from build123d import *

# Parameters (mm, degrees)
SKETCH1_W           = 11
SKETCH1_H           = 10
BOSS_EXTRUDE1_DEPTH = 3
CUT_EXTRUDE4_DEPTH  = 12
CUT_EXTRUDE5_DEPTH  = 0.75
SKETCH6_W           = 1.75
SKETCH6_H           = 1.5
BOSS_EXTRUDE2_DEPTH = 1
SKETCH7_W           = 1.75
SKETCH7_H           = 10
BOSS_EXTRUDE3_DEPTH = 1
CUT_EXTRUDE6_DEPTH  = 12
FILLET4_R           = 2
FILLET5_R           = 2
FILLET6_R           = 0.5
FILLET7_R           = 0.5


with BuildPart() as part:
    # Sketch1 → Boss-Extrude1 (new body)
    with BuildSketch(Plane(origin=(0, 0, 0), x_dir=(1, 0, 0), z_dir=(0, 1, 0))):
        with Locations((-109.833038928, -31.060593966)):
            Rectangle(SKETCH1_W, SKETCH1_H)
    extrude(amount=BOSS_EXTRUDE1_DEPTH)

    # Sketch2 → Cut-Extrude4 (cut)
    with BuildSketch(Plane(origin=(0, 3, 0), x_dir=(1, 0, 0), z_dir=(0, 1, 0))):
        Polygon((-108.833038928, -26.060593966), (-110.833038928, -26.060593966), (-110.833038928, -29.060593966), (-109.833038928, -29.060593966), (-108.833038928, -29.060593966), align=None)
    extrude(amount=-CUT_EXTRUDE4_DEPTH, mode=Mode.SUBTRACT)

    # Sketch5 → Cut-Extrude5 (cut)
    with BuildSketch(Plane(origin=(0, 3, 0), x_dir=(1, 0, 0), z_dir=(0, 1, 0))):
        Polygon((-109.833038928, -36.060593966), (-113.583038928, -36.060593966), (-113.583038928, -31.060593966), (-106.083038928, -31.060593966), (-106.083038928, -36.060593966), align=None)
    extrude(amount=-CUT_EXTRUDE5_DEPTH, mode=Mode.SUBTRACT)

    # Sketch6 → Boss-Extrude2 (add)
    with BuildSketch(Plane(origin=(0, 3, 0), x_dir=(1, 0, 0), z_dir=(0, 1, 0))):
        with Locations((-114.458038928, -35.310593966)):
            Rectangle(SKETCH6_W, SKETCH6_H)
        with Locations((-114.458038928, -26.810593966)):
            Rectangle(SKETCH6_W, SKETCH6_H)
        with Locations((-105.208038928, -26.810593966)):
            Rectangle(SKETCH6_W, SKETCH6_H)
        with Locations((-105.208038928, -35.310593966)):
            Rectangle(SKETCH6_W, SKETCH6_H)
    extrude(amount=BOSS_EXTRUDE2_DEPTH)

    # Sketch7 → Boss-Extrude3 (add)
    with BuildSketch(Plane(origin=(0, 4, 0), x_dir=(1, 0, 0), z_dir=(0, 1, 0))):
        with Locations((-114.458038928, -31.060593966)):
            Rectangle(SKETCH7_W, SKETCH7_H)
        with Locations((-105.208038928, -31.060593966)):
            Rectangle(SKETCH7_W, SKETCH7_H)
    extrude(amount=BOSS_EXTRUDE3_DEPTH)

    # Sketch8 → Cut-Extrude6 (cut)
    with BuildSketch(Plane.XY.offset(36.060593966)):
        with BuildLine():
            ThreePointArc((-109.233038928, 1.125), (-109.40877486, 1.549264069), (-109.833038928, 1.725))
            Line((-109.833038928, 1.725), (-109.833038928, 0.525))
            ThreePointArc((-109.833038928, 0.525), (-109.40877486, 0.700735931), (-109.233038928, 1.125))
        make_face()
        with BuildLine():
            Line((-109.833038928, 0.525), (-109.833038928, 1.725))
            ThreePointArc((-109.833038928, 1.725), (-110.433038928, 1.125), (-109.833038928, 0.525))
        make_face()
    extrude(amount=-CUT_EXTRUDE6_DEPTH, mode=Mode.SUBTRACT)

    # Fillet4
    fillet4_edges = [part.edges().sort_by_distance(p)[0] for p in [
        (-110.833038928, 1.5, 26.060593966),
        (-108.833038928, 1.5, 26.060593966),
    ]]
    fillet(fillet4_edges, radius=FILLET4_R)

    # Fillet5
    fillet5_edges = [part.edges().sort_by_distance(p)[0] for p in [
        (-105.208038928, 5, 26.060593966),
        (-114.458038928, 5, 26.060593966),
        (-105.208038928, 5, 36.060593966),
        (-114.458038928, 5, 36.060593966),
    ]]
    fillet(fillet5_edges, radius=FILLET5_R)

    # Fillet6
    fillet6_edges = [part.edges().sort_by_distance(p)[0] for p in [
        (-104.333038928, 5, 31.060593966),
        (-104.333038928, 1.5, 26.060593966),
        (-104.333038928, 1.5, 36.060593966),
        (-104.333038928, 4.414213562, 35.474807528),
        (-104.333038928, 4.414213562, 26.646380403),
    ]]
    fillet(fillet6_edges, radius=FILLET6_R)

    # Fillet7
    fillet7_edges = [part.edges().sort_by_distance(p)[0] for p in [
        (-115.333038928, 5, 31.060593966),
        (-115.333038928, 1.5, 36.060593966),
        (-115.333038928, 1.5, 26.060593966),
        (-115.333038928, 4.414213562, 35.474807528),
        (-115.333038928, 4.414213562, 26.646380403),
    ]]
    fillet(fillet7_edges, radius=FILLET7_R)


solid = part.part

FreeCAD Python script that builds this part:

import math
import FreeCAD as App
import Part
import Sketcher

V = App.Vector
Q = App.Units.Quantity


def edges_at(feature, points):
    """Names of the edges that pass closest to the given points."""
    edges = feature.Shape.Edges
    near = lambda p: min(range(len(edges)), key=lambda i: edges[i].distToShape(Part.Vertex(*p))[0])
    return sorted({f"Edge{near(p) + 1}" for p in points})

doc = App.newDocument("Part")
params = doc.addObject("Spreadsheet::Sheet", "Params")
for row, (alias, value) in enumerate([
    ("sketch1_width", "11 mm"),
    ("sketch1_height", "10 mm"),
    ("pad1_length", "3 mm"),
    ("sketch2_width", "2 mm"),
    ("sketch2_height", "3 mm"),
    ("pocket1_length", "12 mm"),
    ("sketch3_height", "5 mm"),
    ("sketch3_width", "7.5 mm"),
    ("pocket2_length", "0.75 mm"),
    ("sketch4_height", "1.5 mm"),
    ("sketch4_width", "1.75 mm"),
    ("pad2_length", "1 mm"),
    ("sketch5_height", "10 mm"),
    ("sketch5_width", "1.75 mm"),
    ("pad3_length", "1 mm"),
    ("sketch6_radius", "0.6 mm"),
    ("pocket3_length", "12 mm"),
    ("fillet_radius", "2 mm"),
    ("fillet2_radius", "2 mm"),
    ("fillet3_radius", "0.5 mm"),
    ("fillet4_radius", "0.5 mm"),
], start=1):
    params.set(f"A{row}", alias)
    params.set(f"B{row}", "=" + value)
    params.setAlias(f"B{row}", alias)

body = doc.addObject("PartDesign::Body", "Body")

# Sketch on XZ plane
sketch1 = doc.addObject("Sketcher::SketchObject", "Sketch")
body.addObject(sketch1)
sketch1.AttachmentSupport = (doc.XZ_Plane, [""])
sketch1.MapMode = "FlatFace"
sketch1.addGeometry([
    Part.LineSegment(V(-115, 26, 0), V(-115, 36, 0)),
    Part.LineSegment(V(-115, 36, 0), V(-104, 36, 0)),
    Part.LineSegment(V(-104, 36, 0), V(-104, 26, 0)),
    Part.LineSegment(V(-104, 26, 0), V(-115, 26, 0)),
], False)
sketch1.addConstraint([
    Sketcher.Constraint("Coincident", 0, 2, 1, 1),
    Sketcher.Constraint("Coincident", 1, 2, 2, 1),
    Sketcher.Constraint("Coincident", 2, 2, 3, 1),
    Sketcher.Constraint("Coincident", 3, 2, 0, 1),
    Sketcher.Constraint("Vertical", 0),
    Sketcher.Constraint("Horizontal", 1),
    Sketcher.Constraint("Vertical", 2),
    Sketcher.Constraint("Horizontal", 3),
    Sketcher.Constraint("DistanceX", 1, 1, 1, 2, Q("11 mm")),
    Sketcher.Constraint("DistanceY", 0, 1, 0, 2, Q("10 mm")),
    Sketcher.Constraint("DistanceX", 0, 2, -1, 1, Q("115.333039 mm")),
    Sketcher.Constraint("DistanceY", -1, 1, 0, 2, Q("36.060594 mm")),
])
sketch1.setExpression("Constraints[8]", "Params.sketch1_width")
sketch1.setExpression("Constraints[9]", "Params.sketch1_height")
pad1 = doc.addObject("PartDesign::Pad", "Pad")
body.addObject(pad1)
pad1.Profile = sketch1
pad1.setExpression("Length", "Params.pad1_length")
pad1.Reversed = True

# Sketch on XZ plane
sketch2 = doc.addObject("Sketcher::SketchObject", "Sketch001")
body.addObject(sketch2)
sketch2.AttachmentSupport = (doc.XZ_Plane, [""])
sketch2.MapMode = "FlatFace"
sketch2.AttachmentOffset = App.Placement(V(0, 0, -3), App.Rotation())
sketch2.addGeometry([
    Part.LineSegment(V(-108.8, 26.1, 0), V(-110.8, 26.1, 0)),
    Part.LineSegment(V(-110.8, 26.1, 0), V(-110.8, 29.1, 0)),
    Part.LineSegment(V(-110.8, 29.1, 0), V(-108.8, 29.1, 0)),
    Part.LineSegment(V(-108.8, 29.1, 0), V(-108.8, 26.1, 0)),
], False)
sketch2.addConstraint([
    Sketcher.Constraint("Coincident", 0, 2, 1, 1),
    Sketcher.Constraint("Coincident", 1, 2, 2, 1),
    Sketcher.Constraint("Coincident", 2, 2, 3, 1),
    Sketcher.Constraint("Coincident", 3, 2, 0, 1),
    Sketcher.Constraint("Horizontal", 0),
    Sketcher.Constraint("Vertical", 1),
    Sketcher.Constraint("Horizontal", 2),
    Sketcher.Constraint("Vertical", 3),
    Sketcher.Constraint("DistanceX", 0, 2, 0, 1, Q("2 mm")),
    Sketcher.Constraint("DistanceY", 1, 1, 1, 2, Q("3 mm")),
    Sketcher.Constraint("DistanceX", 0, 2, -1, 1, Q("110.833039 mm")),
    Sketcher.Constraint("DistanceY", -1, 1, 0, 2, Q("26.060594 mm")),
])
sketch2.setExpression("Constraints[8]", "Params.sketch2_width")
sketch2.setExpression("Constraints[9]", "Params.sketch2_height")
pocket1 = doc.addObject("PartDesign::Pocket", "Pocket")
body.addObject(pocket1)
pocket1.Profile = sketch2
pocket1.setExpression("Length", "Params.pocket1_length")
pocket1.Reversed = True

# Sketch on XZ plane
sketch3 = doc.addObject("Sketcher::SketchObject", "Sketch002")
body.addObject(sketch3)
sketch3.AttachmentSupport = (doc.XZ_Plane, [""])
sketch3.MapMode = "FlatFace"
sketch3.AttachmentOffset = App.Placement(V(0, 0, -3), App.Rotation())
sketch3.addGeometry([
    Part.LineSegment(V(-114, 36, 0), V(-106, 36, 0)),
    Part.LineSegment(V(-106, 36, 0), V(-106, 31, 0)),
    Part.LineSegment(V(-106, 31, 0), V(-114, 31, 0)),
    Part.LineSegment(V(-114, 31, 0), V(-114, 36, 0)),
], False)
sketch3.addConstraint([
    Sketcher.Constraint("Coincident", 0, 2, 1, 1),
    Sketcher.Constraint("Coincident", 1, 2, 2, 1),
    Sketcher.Constraint("Coincident", 2, 2, 3, 1),
    Sketcher.Constraint("Coincident", 3, 2, 0, 1),
    Sketcher.Constraint("Horizontal", 0),
    Sketcher.Constraint("Vertical", 1),
    Sketcher.Constraint("Horizontal", 2),
    Sketcher.Constraint("Vertical", 3),
    Sketcher.Constraint("DistanceY", 1, 2, 1, 1, Q("5 mm")),
    Sketcher.Constraint("DistanceX", 0, 1, 0, 2, Q("7.5 mm")),
    Sketcher.Constraint("DistanceX", 0, 2, -1, 1, Q("106.083039 mm")),
    Sketcher.Constraint("DistanceY", -1, 1, 0, 2, Q("36.060594 mm")),
])
sketch3.setExpression("Constraints[8]", "Params.sketch3_height")
sketch3.setExpression("Constraints[9]", "Params.sketch3_width")
pocket2 = doc.addObject("PartDesign::Pocket", "Pocket001")
body.addObject(pocket2)
pocket2.Profile = sketch3
pocket2.setExpression("Length", "Params.pocket2_length")
pocket2.Reversed = True

# Sketch on XZ plane
sketch4 = doc.addObject("Sketcher::SketchObject", "Sketch003")
body.addObject(sketch4)
sketch4.AttachmentSupport = (doc.XZ_Plane, [""])
sketch4.MapMode = "FlatFace"
sketch4.AttachmentOffset = App.Placement(V(0, 0, -3), App.Rotation())
sketch4.addGeometry([
    Part.LineSegment(V(-115.3, 34.6, 0), V(-115.3, 36.1, 0)),  # 0
    Part.LineSegment(V(-115.3, 36.1, 0), V(-113.6, 36.1, 0)),  # 1
    Part.LineSegment(V(-113.6, 36.1, 0), V(-113.6, 34.6, 0)),  # 2
    Part.LineSegment(V(-113.6, 34.6, 0), V(-115.3, 34.6, 0)),  # 3
    Part.LineSegment(V(-115.3, 26.1, 0), V(-115.3, 27.6, 0)),  # 4
    Part.LineSegment(V(-115.3, 27.6, 0), V(-113.6, 27.6, 0)),  # 5
    Part.LineSegment(V(-113.6, 27.6, 0), V(-113.6, 26.1, 0)),  # 6
    Part.LineSegment(V(-113.6, 26.1, 0), V(-115.3, 26.1, 0)),  # 7
    Part.LineSegment(V(-106.1, 26.1, 0), V(-106.1, 27.6, 0)),  # 8
    Part.LineSegment(V(-106.1, 27.6, 0), V(-104.3, 27.6, 0)),  # 9
    Part.LineSegment(V(-104.3, 27.6, 0), V(-104.3, 26.1, 0)),  # 10
    Part.LineSegment(V(-104.3, 26.1, 0), V(-106.1, 26.1, 0)),  # 11
    Part.LineSegment(V(-106.1, 34.6, 0), V(-106.1, 36.1, 0)),  # 12
    Part.LineSegment(V(-106.1, 36.1, 0), V(-104.3, 36.1, 0)),  # 13
    Part.LineSegment(V(-104.3, 36.1, 0), V(-104.3, 34.6, 0)),  # 14
    Part.LineSegment(V(-104.3, 34.6, 0), V(-106.1, 34.6, 0)),  # 15
], False)
sketch4.addConstraint([
    Sketcher.Constraint("Coincident", 0, 2, 1, 1),
    Sketcher.Constraint("Coincident", 1, 2, 2, 1),
    Sketcher.Constraint("Coincident", 2, 2, 3, 1),
    Sketcher.Constraint("Coincident", 3, 2, 0, 1),
    Sketcher.Constraint("Coincident", 4, 2, 5, 1),
    Sketcher.Constraint("Coincident", 5, 2, 6, 1),
    Sketcher.Constraint("Coincident", 6, 2, 7, 1),
    Sketcher.Constraint("Coincident", 7, 2, 4, 1),
    Sketcher.Constraint("Coincident", 8, 2, 9, 1),
    Sketcher.Constraint("Coincident", 9, 2, 10, 1),
    Sketcher.Constraint("Coincident", 10, 2, 11, 1),
    Sketcher.Constraint("Coincident", 11, 2, 8, 1),
    Sketcher.Constraint("Coincident", 12, 2, 13, 1),
    Sketcher.Constraint("Coincident", 13, 2, 14, 1),
    Sketcher.Constraint("Coincident", 14, 2, 15, 1),
    Sketcher.Constraint("Coincident", 15, 2, 12, 1),
    Sketcher.Constraint("Vertical", 0),
    Sketcher.Constraint("Horizontal", 1),
    Sketcher.Constraint("Vertical", 2),
    Sketcher.Constraint("Horizontal", 3),
    Sketcher.Constraint("Vertical", 4),
    Sketcher.Constraint("Horizontal", 5),
    Sketcher.Constraint("Vertical", 6),
    Sketcher.Constraint("Horizontal", 7),
    Sketcher.Constraint("Vertical", 8),
    Sketcher.Constraint("Horizontal", 9),
    Sketcher.Constraint("Vertical", 10),
    Sketcher.Constraint("Horizontal", 11),
    Sketcher.Constraint("Vertical", 12),
    Sketcher.Constraint("Horizontal", 13),
    Sketcher.Constraint("Vertical", 14),
    Sketcher.Constraint("Horizontal", 15),
    Sketcher.Constraint("Horizontal", 5, 2, 8, 2),
    Sketcher.Constraint("Horizontal", 7, 2, 10, 2),
    Sketcher.Constraint("Horizontal", 1, 2, 12, 2),
    Sketcher.Constraint("Horizontal", 3, 2, 14, 2),
    Sketcher.Constraint("Vertical", 3, 2, 4, 2),
    Sketcher.Constraint("Vertical", 2, 2, 5, 2),
    Sketcher.Constraint("Vertical", 11, 2, 12, 2),
    Sketcher.Constraint("Vertical", 10, 2, 13, 2),
    Sketcher.Constraint("Equal", 7, 9),
    Sketcher.Constraint("Equal", 2, 4),
    Sketcher.Constraint("DistanceY", 0, 1, 0, 2, Q("1.5 mm")),
    Sketcher.Constraint("DistanceY", 4, 2, 3, 2, Q("7 mm")),
    Sketcher.Constraint("DistanceX", 4, 2, 9, 2, Q("11 mm")),
    Sketcher.Constraint("DistanceX", 1, 1, 1, 2, Q("1.75 mm")),
    Sketcher.Constraint("DistanceX", 0, 2, -1, 1, Q("115.333039 mm")),
    Sketcher.Constraint("DistanceY", -1, 1, 0, 2, Q("36.060594 mm")),
])
sketch4.setExpression("Constraints[42]", "Params.sketch4_height")
sketch4.setExpression("Constraints[45]", "Params.sketch4_width")
pad2 = doc.addObject("PartDesign::Pad", "Pad001")
body.addObject(pad2)
pad2.Profile = sketch4
pad2.setExpression("Length", "Params.pad2_length")
pad2.Reversed = True

# Sketch on XZ plane
sketch5 = doc.addObject("Sketcher::SketchObject", "Sketch004")
body.addObject(sketch5)
sketch5.AttachmentSupport = (doc.XZ_Plane, [""])
sketch5.MapMode = "FlatFace"
sketch5.AttachmentOffset = App.Placement(V(0, 0, -4), App.Rotation())
sketch5.addGeometry([
    Part.LineSegment(V(-115.3, 26.1, 0), V(-115.3, 36.1, 0)),  # 0
    Part.LineSegment(V(-115.3, 36.1, 0), V(-113.6, 36.1, 0)),  # 1
    Part.LineSegment(V(-113.6, 36.1, 0), V(-113.6, 26.1, 0)),  # 2
    Part.LineSegment(V(-113.6, 26.1, 0), V(-115.3, 26.1, 0)),  # 3
    Part.LineSegment(V(-106.1, 26.1, 0), V(-106.1, 36.1, 0)),  # 4
    Part.LineSegment(V(-106.1, 36.1, 0), V(-104.3, 36.1, 0)),  # 5
    Part.LineSegment(V(-104.3, 36.1, 0), V(-104.3, 26.1, 0)),  # 6
    Part.LineSegment(V(-104.3, 26.1, 0), V(-106.1, 26.1, 0)),  # 7
], False)
sketch5.addConstraint([
    Sketcher.Constraint("Coincident", 0, 2, 1, 1),
    Sketcher.Constraint("Coincident", 1, 2, 2, 1),
    Sketcher.Constraint("Coincident", 2, 2, 3, 1),
    Sketcher.Constraint("Coincident", 3, 2, 0, 1),
    Sketcher.Constraint("Coincident", 4, 2, 5, 1),
    Sketcher.Constraint("Coincident", 5, 2, 6, 1),
    Sketcher.Constraint("Coincident", 6, 2, 7, 1),
    Sketcher.Constraint("Coincident", 7, 2, 4, 1),
    Sketcher.Constraint("Vertical", 0),
    Sketcher.Constraint("Horizontal", 1),
    Sketcher.Constraint("Vertical", 2),
    Sketcher.Constraint("Horizontal", 3),
    Sketcher.Constraint("Vertical", 4),
    Sketcher.Constraint("Horizontal", 5),
    Sketcher.Constraint("Vertical", 6),
    Sketcher.Constraint("Horizontal", 7),
    Sketcher.Constraint("Horizontal", 1, 2, 4, 2),
    Sketcher.Constraint("Horizontal", 3, 2, 6, 2),
    Sketcher.Constraint("Equal", 3, 5),
    Sketcher.Constraint("DistanceY", 0, 1, 0, 2, Q("10 mm")),
    Sketcher.Constraint("DistanceX", 0, 2, 5, 2, Q("11 mm")),
    Sketcher.Constraint("DistanceX", 1, 1, 1, 2, Q("1.75 mm")),
    Sketcher.Constraint("DistanceX", 0, 2, -1, 1, Q("115.333039 mm")),
    Sketcher.Constraint("DistanceY", -1, 1, 0, 2, Q("36.060594 mm")),
])
sketch5.setExpression("Constraints[19]", "Params.sketch5_height")
sketch5.setExpression("Constraints[21]", "Params.sketch5_width")
pad3 = doc.addObject("PartDesign::Pad", "Pad002")
body.addObject(pad3)
pad3.Profile = sketch5
pad3.setExpression("Length", "Params.pad3_length")
pad3.Reversed = True

# Sketch on XY plane
sketch6 = doc.addObject("Sketcher::SketchObject", "Sketch005")
body.addObject(sketch6)
sketch6.AttachmentSupport = (doc.XY_Plane, [""])
sketch6.MapMode = "FlatFace"
sketch6.AttachmentOffset = App.Placement(V(0, 0, 36.060594), App.Rotation())
sketch6.addGeometry([
    Part.ArcOfCircle(Part.Circle(V(-109.8, 1.1, 0), V(0, 0, 1), 0.6), math.radians(0), math.radians(90)),
    Part.ArcOfCircle(Part.Circle(V(-109.8, 1.1, 0), V(0, 0, 1), 0.6), math.radians(90), math.radians(270)),
    Part.ArcOfCircle(Part.Circle(V(-109.8, 1.1, 0), V(0, 0, 1), 0.6), math.radians(-90), math.radians(0)),
], False)
sketch6.addConstraint([
    Sketcher.Constraint("Tangent", 0, 2, 1, 1),
    Sketcher.Constraint("Tangent", 1, 2, 2, 1),
    Sketcher.Constraint("Tangent", 2, 2, 0, 1),
    Sketcher.Constraint("Horizontal", 1, 3, 2, 2),
    Sketcher.Constraint("Vertical", 2, 3, 0, 2),
    Sketcher.Constraint("Vertical", 0, 2, 1, 2),
    Sketcher.Constraint("Radius", 0, Q("0.6 mm")),
    Sketcher.Constraint("DistanceY", -1, 1, 0, 3, Q("1.125 mm")),
    Sketcher.Constraint("DistanceX", 0, 3, -1, 1, Q("109.833039 mm")),
])
sketch6.setExpression("Constraints[6]", "Params.sketch6_radius")
pocket3 = doc.addObject("PartDesign::Pocket", "Pocket002")
body.addObject(pocket3)
pocket3.Profile = sketch6
pocket3.setExpression("Length", "Params.pocket3_length")
doc.recompute()

fillet = doc.addObject("PartDesign::Fillet", "Fillet")
body.addObject(fillet)
fillet.Base = (pocket3, edges_at(pocket3, [(-110.833, 1.5, 26.061), (-108.833, 1.5, 26.061)]))
fillet.setExpression("Radius", "Params.fillet_radius")
doc.recompute()

fillet2 = doc.addObject("PartDesign::Fillet", "Fillet001")
body.addObject(fillet2)
fillet2.Base = (fillet, edges_at(fillet, [
    (-105.208, 5, 26.061),
    (-114.458, 5, 26.061),
    (-105.208, 5, 36.061),
    (-114.458, 5, 36.061),
]))
fillet2.setExpression("Radius", "Params.fillet2_radius")
doc.recompute()

fillet3 = doc.addObject("PartDesign::Fillet", "Fillet002")
body.addObject(fillet3)
fillet3.Base = (fillet2, edges_at(fillet2, [
    (-104.333, 5, 31.061),
    (-104.333, 1.5, 26.061),
    (-104.333, 1.5, 36.061),
    (-104.333, 4.414, 35.475),
    (-104.333, 4.414, 26.646),
]))
fillet3.setExpression("Radius", "Params.fillet3_radius")
doc.recompute()

fillet4 = doc.addObject("PartDesign::Fillet", "Fillet003")
body.addObject(fillet4)
fillet4.Base = (fillet3, edges_at(fillet3, [
    (-115.333, 5, 31.061),
    (-115.333, 1.5, 36.061),
    (-115.333, 1.5, 26.061),
    (-115.333, 4.414, 35.475),
    (-115.333, 4.414, 26.646),
]))
fillet4.setExpression("Radius", "Params.fillet4_radius")

doc.recompute()
